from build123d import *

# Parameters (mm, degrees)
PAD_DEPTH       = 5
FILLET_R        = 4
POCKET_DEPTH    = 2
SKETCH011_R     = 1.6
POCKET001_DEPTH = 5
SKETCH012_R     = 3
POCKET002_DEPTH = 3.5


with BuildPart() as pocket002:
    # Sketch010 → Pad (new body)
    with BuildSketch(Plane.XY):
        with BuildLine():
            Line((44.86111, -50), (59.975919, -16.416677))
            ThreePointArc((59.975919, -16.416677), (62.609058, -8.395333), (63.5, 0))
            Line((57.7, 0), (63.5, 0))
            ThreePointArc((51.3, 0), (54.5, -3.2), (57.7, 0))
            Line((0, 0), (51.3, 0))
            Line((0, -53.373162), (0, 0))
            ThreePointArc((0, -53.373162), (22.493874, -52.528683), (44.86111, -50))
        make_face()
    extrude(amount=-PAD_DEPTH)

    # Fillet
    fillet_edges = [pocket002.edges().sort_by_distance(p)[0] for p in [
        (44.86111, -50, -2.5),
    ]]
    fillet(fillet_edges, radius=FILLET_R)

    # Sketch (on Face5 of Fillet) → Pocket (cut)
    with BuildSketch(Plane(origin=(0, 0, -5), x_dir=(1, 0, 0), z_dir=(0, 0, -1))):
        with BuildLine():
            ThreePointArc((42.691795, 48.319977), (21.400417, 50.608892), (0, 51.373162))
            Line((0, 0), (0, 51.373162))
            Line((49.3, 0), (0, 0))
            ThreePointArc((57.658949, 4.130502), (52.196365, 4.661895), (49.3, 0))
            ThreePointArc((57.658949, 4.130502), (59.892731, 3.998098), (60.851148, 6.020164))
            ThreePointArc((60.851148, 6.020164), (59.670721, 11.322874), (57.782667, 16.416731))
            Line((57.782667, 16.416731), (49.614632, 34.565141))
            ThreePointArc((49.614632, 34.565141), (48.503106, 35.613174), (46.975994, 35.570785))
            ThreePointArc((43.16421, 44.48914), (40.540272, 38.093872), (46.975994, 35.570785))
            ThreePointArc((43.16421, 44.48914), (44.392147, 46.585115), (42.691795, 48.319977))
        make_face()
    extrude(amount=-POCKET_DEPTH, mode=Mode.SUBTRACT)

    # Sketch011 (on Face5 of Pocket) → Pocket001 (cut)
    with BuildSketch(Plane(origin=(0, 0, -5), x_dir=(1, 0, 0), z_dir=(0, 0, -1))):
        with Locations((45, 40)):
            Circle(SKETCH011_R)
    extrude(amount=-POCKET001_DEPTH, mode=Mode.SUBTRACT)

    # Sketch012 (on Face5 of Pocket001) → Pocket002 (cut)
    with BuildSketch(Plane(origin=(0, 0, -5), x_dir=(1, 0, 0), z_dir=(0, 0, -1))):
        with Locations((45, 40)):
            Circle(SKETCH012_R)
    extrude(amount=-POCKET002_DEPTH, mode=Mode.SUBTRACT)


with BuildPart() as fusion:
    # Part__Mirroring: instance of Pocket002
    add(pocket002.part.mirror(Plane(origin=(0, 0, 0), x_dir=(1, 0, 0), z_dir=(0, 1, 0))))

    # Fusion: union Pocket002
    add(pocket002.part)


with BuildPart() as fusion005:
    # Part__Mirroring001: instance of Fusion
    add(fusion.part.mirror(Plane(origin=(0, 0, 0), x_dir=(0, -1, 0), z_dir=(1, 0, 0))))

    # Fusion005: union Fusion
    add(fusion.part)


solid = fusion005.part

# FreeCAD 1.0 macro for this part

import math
import FreeCAD as App
import Part
import Sketcher
from FreeCAD import Vector
Q = App.Units.Quantity


def edges_at(feature, points):
    """Names of the edges that pass closest to the given points."""
    edges = feature.Shape.Edges
    near = lambda p: min(range(len(edges)), key=lambda i: edges[i].distToShape(Part.Vertex(*p))[0])
    return sorted({f"Edge{near(p) + 1}" for p in points})

doc = App.newDocument("Part")
body = doc.addObject("PartDesign::Body", "Body")

# Sketch on XY plane
sketch1 = body.newObject("Sketcher::SketchObject", "Sketch")
sketch1.AttachmentSupport = (doc.getObject("XY_Plane"), [""])
sketch1.MapMode = "FlatFace"
sketch1.addGeometry([
    Part.LineSegment(Vector(44.9, -50, 0), Vector(60, -16.4, 0)),  # 0
    Part.ArcOfCircle(Part.Circle(Vector(23.5, 0, 0), Vector(0, 0, 1), 40), math.radians(-24), math.radians(0)),  # 1
    Part.LineSegment(Vector(63.5, 0, 0), Vector(57.7, 0, 0)),  # 2
    Part.ArcOfCircle(Part.Circle(Vector(54.5, 0, 0), Vector(0, 0, 1), 3.2), math.radians(180), math.radians(360)),  # 3
    Part.LineSegment(Vector(51.3, 0, 0), Vector(0, 0, 0)),  # 4
    Part.LineSegment(Vector(0, 0, 0), Vector(0, -53.4, 0)),  # 5
    Part.ArcOfCircle(Part.Circle(Vector(0, 246.6, 0), Vector(0, 0, 1), 300), math.radians(-90), math.radians(-81.4)),  # 6
], False)
sketch1.addConstraint([
    Sketcher.Constraint("Tangent", 0, 2, 1, 1),
    Sketcher.Constraint("Coincident", 1, 2, 2, 1),
    Sketcher.Constraint("Coincident", 2, 2, 3, 2),
    Sketcher.Constraint("Coincident", 3, 1, 4, 1),
    Sketcher.Constraint("Coincident", 4, 2, 5, 1),
    Sketcher.Constraint("Coincident", 5, 2, 6, 1),
    Sketcher.Constraint("Coincident", 6, 2, 0, 1),
    Sketcher.Constraint("Horizontal", 2),
    Sketcher.Constraint("Horizontal", 4),
    Sketcher.Constraint("Vertical", 5),
    Sketcher.Constraint("Coincident", 4, 2, -1, 1),
    Sketcher.Constraint("PointOnObject", 3, 3, -1),
    Sketcher.Constraint("PointOnObject", 1, 2, -1),
    Sketcher.Constraint("Radius", 3, Q("3.2 mm")),
    Sketcher.Constraint("DistanceX", 2, 2, 2, 1, Q("5.8 mm")),
    Sketcher.Constraint("DistanceX", 4, 2, 4, 1, Q("51.3 mm")),
    Sketcher.Constraint("DistanceY", 6, 2, -1, 1, Q("50 mm")),
    Sketcher.Constraint("Radius", 1, Q("39.999968 mm")),
    Sketcher.Constraint("Radius", 6, Q("299.999997 mm")),
    Sketcher.Constraint("Distance", 0, Q("36.827938 mm")),
    Sketcher.Constraint("DistanceY", 5, 2, 5, 1, Q("53.373162 mm")),
    Sketcher.Constraint("DistanceX", -1, 1, 0, 2, Q("59.975919 mm")),
])
pad1 = body.newObject("PartDesign::Pad", "Pad")
pad1.Profile = sketch1
pad1.Length = 5
pad1.Reversed = True
doc.recompute()

fillet = body.newObject("PartDesign::Fillet", "Fillet")
fillet.Base = (pad1, edges_at(pad1, [(44.861, -50, -2.5)]))
fillet.Radius = 4

# Sketch on XY plane
sketch2 = body.newObject("Sketcher::SketchObject", "Sketch001")
sketch2.AttachmentSupport = (doc.getObject("XY_Plane"), [""])
sketch2.MapMode = "FlatFace"
sketch2.AttachmentOffset = App.Placement(Vector(0, 0, -5), App.Rotation())
sketch2.addGeometry([
    Part.ArcOfCircle(Part.Circle(Vector(-0.000006, 248.626964, 0), Vector(0, 0, 1), 300.000126), math.radians(-89.999999), math.radians(-81.818697)),  # 0
    Part.LineSegment(Vector(0, -51.373162, 0), Vector(0, 0, 0)),  # 1
    Part.LineSegment(Vector(0, 0, 0), Vector(49.3, 0, 0)),  # 2
    Part.ArcOfCircle(Part.Circle(Vector(54.500001, 0, 0), Vector(0, 0, 1), 5.200001), math.radians(-179.999995), math.radians(-52.591764)),  # 3
    Part.ArcOfCircle(Part.Circle(Vector(58.873929, -5.719157, 0), Vector(0, 0, 1), 2), math.radians(-8.656117), math.radians(127.408237)),  # 4
    Part.ArcOfCircle(Part.Circle(Vector(21.306836, -0.000015, 0), Vector(0, 0, 1), 39.999935), math.radians(-24.231131), math.radians(-8.656133)),  # 5
    Part.LineSegment(Vector(57.782667, -16.416731, 0), Vector(49.614632, -34.565141, 0)),  # 6
    Part.ArcOfCircle(Part.Circle(Vector(47.790837, -33.744304, 0), Vector(0, 0, 1), 2), math.radians(-114.04296), math.radians(-24.231113)),  # 7
    Part.ArcOfCircle(Part.Circle(Vector(45, -40, 0), Vector(0, 0, 1), 4.85), math.radians(65.957045), math.radians(247.758369)),  # 8
    Part.ArcOfCircle(Part.Circle(Vector(42.407183, -46.340332, 0), Vector(0, 0, 1), 2), math.radians(-81.818702), math.radians(67.758373)),  # 9
], False)
sketch2.addConstraint([
    Sketcher.Constraint("Coincident", 0, 1, 1, 1),
    Sketcher.Constraint("Coincident", 1, 2, 2, 1),
    Sketcher.Constraint("Coincident", 2, 2, 3, 1),
    Sketcher.Constraint("Coincident", 3, 2, 4, 2),
    Sketcher.Constraint("Coincident", 4, 1, 5, 2),
    Sketcher.Constraint("Coincident", 5, 1, 6, 1),
    Sketcher.Constraint("Coincident", 6, 2, 7, 2),
    Sketcher.Constraint("Coincident", 7, 1, 8, 1),
    Sketcher.Constraint("Coincident", 8, 2, 9, 2),
    Sketcher.Constraint("Coincident", 9, 1, 0, 2),
    Sketcher.Constraint("Vertical", 1),
    Sketcher.Constraint("Horizontal", 2),
    Sketcher.Constraint("Coincident", 1, 2, -1, 1),
    Sketcher.Constraint("PointOnObject", 3, 3, -1),
    Sketcher.Constraint("Radius", 4, Q("2 mm")),
    Sketcher.Constraint("Radius", 7, Q("2 mm")),
    Sketcher.Constraint("Radius", 9, Q("2 mm")),
    Sketcher.Constraint("Radius", 3, Q("5.200001 mm")),
    Sketcher.Constraint("Radius", 8, Q("4.85 mm")),
    Sketcher.Constraint("DistanceX", 2, 1, 2, 2, Q("49.3 mm")),
    Sketcher.Constraint("DistanceX", -1, 1, 8, 3, Q("45 mm")),
    Sketcher.Constraint("DistanceY", 8, 3, -1, 1, Q("40 mm")),
    Sketcher.Constraint("Radius", 0, Q("300.000126 mm")),
    Sketcher.Constraint("Radius", 5, Q("39.999935 mm")),
    Sketcher.Constraint("DistanceX", 5, 3, 7, 3, Q("26.484001 mm")),
    Sketcher.Constraint("DistanceY", 8, 2, 6, 2, Q("9.923999 mm")),
    Sketcher.Constraint("Distance", 6, Q("19.901798 mm")),
    Sketcher.Constraint("DistanceY", 3, 2, -1, 1, Q("4.130502 mm")),
    Sketcher.Constraint("DistanceX", 3, 2, 4, 1, Q("3.192199 mm")),
    Sketcher.Constraint("DistanceX", 9, 1, 7, 1, Q("4.284199 mm")),
    Sketcher.Constraint("DistanceY", 1, 1, 1, 2, Q("51.373162 mm")),
    Sketcher.Constraint("DistanceX", -1, 1, 4, 3, Q("58.873929 mm")),
    Sketcher.Constraint("DistanceY", 9, 3, -1, 1, Q("46.340332 mm")),
    Sketcher.Constraint("DistanceY", 5, 1, -1, 1, Q("16.416731 mm")),
    Sketcher.Constraint("DistanceY", 6, 2, -1, 1, Q("34.565141 mm")),
    Sketcher.Constraint("DistanceY", 7, 1, 7, 3, Q("1.826481 mm")),
])
pocket1 = body.newObject("PartDesign::Pocket", "Pocket")
pocket1.Profile = sketch2
pocket1.Length = 2
pocket1.Reversed = True

# Sketch on XY plane
sketch3 = body.newObject("Sketcher::SketchObject", "Sketch002")
sketch3.AttachmentSupport = (doc.getObject("XY_Plane"), [""])
sketch3.MapMode = "FlatFace"
sketch3.AttachmentOffset = App.Placement(Vector(0, 0, -5), App.Rotation())
sketch3.addGeometry(Part.Circle(Vector(45, -40, 0), Vector(0, 0, 1), 1.6), False)
sketch3.addConstraint([
    Sketcher.Constraint("Diameter", 0, Q("3.2 mm")),
    Sketcher.Constraint("DistanceX", -1, 1, 0, 3, Q("45 mm")),
    Sketcher.Constraint("DistanceY", 0, 3, -1, 1, Q("40 mm")),
])
pocket2 = body.newObject("PartDesign::Pocket", "Pocket001")
pocket2.Profile = sketch3
pocket2.Length = 5
pocket2.Reversed = True

# Sketch on XY plane
sketch4 = body.newObject("Sketcher::SketchObject", "Sketch003")
sketch4.AttachmentSupport = (doc.getObject("XY_Plane"), [""])
sketch4.MapMode = "FlatFace"
sketch4.AttachmentOffset = App.Placement(Vector(0, 0, -5), App.Rotation())
sketch4.addGeometry(Part.Circle(Vector(45, -40, 0), Vector(0, 0, 1), 3), False)
sketch4.addConstraint([
    Sketcher.Constraint("Diameter", 0, Q("6 mm")),
    Sketcher.Constraint("DistanceX", -1, 1, 0, 3, Q("45 mm")),
    Sketcher.Constraint("DistanceY", 0, 3, -1, 1, Q("40 mm")),
])
pocket3 = body.newObject("PartDesign::Pocket", "Pocket002")
pocket3.Profile = sketch4
pocket3.Length = 3.5
pocket3.Reversed = True
body2 = doc.addObject("PartDesign::Body", "Body001")
doc.recompute()

mirroring = doc.addObject("Part::Mirroring", "Mirroring")
mirroring.Source = body
mirroring.Base = Vector(0, 0, 0)
mirroring.Normal = Vector(0, 1, 0)
body2.BaseFeature = mirroring
doc.recompute()

boolean = body2.newObject("PartDesign::Boolean", "Boolean")
boolean.Type = "Fuse"
boolean.addObjects([body])
body3 = doc.addObject("PartDesign::Body", "Body002")
doc.recompute()

mirroring2 = doc.addObject("Part::Mirroring", "Mirroring001")
mirroring2.Source = body2
mirroring2.Base = Vector(0, 0, 0)
mirroring2.Normal = Vector(1, 0, 0)
body3.BaseFeature = mirroring2
doc.recompute()

boolean2 = body3.newObject("PartDesign::Boolean", "Boolean001")
boolean2.Type = "Fuse"
boolean2.addObjects([body2])
mirroring.Visibility = False
mirroring2.Visibility = False

doc.recompute()
